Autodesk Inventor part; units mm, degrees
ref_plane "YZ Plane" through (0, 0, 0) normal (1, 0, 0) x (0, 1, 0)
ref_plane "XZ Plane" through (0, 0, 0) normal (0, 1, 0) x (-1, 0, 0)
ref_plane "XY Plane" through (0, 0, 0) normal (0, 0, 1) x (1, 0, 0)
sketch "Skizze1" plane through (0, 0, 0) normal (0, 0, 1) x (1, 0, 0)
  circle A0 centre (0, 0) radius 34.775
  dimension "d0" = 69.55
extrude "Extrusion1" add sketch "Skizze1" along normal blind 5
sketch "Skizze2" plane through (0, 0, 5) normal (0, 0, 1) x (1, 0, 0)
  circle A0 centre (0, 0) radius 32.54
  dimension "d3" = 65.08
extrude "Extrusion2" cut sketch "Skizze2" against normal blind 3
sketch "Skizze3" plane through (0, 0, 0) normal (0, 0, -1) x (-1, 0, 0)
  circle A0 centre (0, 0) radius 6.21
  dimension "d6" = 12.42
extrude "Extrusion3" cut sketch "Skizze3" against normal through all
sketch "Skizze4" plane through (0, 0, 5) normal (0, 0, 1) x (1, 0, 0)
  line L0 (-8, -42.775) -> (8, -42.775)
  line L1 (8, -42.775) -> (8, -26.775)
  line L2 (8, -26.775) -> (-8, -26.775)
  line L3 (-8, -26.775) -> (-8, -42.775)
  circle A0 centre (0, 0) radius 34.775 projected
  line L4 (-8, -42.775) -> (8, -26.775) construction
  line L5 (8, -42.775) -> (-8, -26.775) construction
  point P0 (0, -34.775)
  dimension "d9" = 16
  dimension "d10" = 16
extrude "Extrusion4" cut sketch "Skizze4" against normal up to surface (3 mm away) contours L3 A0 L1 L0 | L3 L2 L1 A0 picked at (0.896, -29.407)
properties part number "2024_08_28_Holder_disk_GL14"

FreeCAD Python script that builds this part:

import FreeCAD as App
import Part
import Sketcher

V = App.Vector

doc = App.newDocument("Part")
body = doc.addObject("PartDesign::Body", "Body")

# Sketch on XY plane
sketch1 = body.newObject("Sketcher::SketchObject", "Sketch")
sketch1.AttachmentSupport = (doc.getObject("XY_Plane"), [""])
sketch1.MapMode = "FlatFace"
sketch1.addGeometry(Part.Circle(V(0, 0, 0), V(0, 0, 1), 35), False)
sketch1.addConstraint([
    Sketcher.Constraint("Coincident", 0, 3, -1, 1),
    Sketcher.Constraint("Diameter", 0, 69.55),
])
pad1 = body.newObject("PartDesign::Pad", "Pad")
pad1.Profile = sketch1
pad1.Length = 5

# Sketch on XY plane
sketch2 = body.newObject("Sketcher::SketchObject", "Sketch001")
sketch2.AttachmentSupport = (doc.getObject("XY_Plane"), [""])
sketch2.MapMode = "FlatFace"
sketch2.AttachmentOffset = App.Placement(V(0, 0, 5), App.Rotation())
sketch2.addGeometry(Part.Circle(V(0, 0, 0), V(0, 0, 1), 33), False)
sketch2.addConstraint([
    Sketcher.Constraint("Coincident", 0, 3, -1, 1),
    Sketcher.Constraint("Diameter", 0, 65.08),
])
pocket1 = body.newObject("PartDesign::Pocket", "Pocket")
pocket1.Profile = sketch2
pocket1.Length = 3

# Sketch on XY plane
sketch3 = body.newObject("Sketcher::SketchObject", "Sketch002")
sketch3.AttachmentSupport = (doc.getObject("XY_Plane"), [""])
sketch3.MapMode = "FlatFace"
sketch3.addGeometry(Part.Circle(V(0, 0, 0), V(0, 0, 1), 6), False)
sketch3.addConstraint([
    Sketcher.Constraint("Coincident", 0, 3, -1, 1),
    Sketcher.Constraint("Diameter", 0, 12.42),
])
pocket2 = body.newObject("PartDesign::Pocket", "Pocket001")
pocket2.Profile = sketch3
pocket2.Type = "ThroughAll"
pocket2.Reversed = True

# Sketch on XY plane
sketch4 = body.newObject("Sketcher::SketchObject", "Sketch003")
sketch4.AttachmentSupport = (doc.getObject("XY_Plane"), [""])
sketch4.MapMode = "FlatFace"
sketch4.AttachmentOffset = App.Placement(V(0, 0, 5), App.Rotation())
sketch4.addGeometry([
    Part.LineSegment(V(-8, -43, 0), V(8, -43, 0)),
    Part.LineSegment(V(8, -43, 0), V(8, -27, 0)),
    Part.LineSegment(V(8, -27, 0), V(-8, -27, 0)),
    Part.LineSegment(V(-8, -27, 0), V(-8, -43, 0)),
], False)
sketch4.addConstraint([
    Sketcher.Constraint("Coincident", 0, 2, 1, 1),
    Sketcher.Constraint("Coincident", 1, 2, 2, 1),
    Sketcher.Constraint("Coincident", 2, 2, 3, 1),
    Sketcher.Constraint("Coincident", 3, 2, 0, 1),
    Sketcher.Constraint("Horizontal", 0),
    Sketcher.Constraint("Vertical", 1),
    Sketcher.Constraint("Horizontal", 2),
    Sketcher.Constraint("Vertical", 3),
    Sketcher.Constraint("Equal", 2, 1),
    Sketcher.Constraint("DistanceX", 0, 1, 0, 2, 16.0),
    Sketcher.Constraint("DistanceX", -1, 1, 0, 2, 8.0),
    Sketcher.Constraint("DistanceY", 0, 2, -1, 1, 42.775),
])
pocket3 = body.newObject("PartDesign::Pocket", "Pocket002")
pocket3.Profile = sketch4
pocket3.Length = 3

doc.recompute()
